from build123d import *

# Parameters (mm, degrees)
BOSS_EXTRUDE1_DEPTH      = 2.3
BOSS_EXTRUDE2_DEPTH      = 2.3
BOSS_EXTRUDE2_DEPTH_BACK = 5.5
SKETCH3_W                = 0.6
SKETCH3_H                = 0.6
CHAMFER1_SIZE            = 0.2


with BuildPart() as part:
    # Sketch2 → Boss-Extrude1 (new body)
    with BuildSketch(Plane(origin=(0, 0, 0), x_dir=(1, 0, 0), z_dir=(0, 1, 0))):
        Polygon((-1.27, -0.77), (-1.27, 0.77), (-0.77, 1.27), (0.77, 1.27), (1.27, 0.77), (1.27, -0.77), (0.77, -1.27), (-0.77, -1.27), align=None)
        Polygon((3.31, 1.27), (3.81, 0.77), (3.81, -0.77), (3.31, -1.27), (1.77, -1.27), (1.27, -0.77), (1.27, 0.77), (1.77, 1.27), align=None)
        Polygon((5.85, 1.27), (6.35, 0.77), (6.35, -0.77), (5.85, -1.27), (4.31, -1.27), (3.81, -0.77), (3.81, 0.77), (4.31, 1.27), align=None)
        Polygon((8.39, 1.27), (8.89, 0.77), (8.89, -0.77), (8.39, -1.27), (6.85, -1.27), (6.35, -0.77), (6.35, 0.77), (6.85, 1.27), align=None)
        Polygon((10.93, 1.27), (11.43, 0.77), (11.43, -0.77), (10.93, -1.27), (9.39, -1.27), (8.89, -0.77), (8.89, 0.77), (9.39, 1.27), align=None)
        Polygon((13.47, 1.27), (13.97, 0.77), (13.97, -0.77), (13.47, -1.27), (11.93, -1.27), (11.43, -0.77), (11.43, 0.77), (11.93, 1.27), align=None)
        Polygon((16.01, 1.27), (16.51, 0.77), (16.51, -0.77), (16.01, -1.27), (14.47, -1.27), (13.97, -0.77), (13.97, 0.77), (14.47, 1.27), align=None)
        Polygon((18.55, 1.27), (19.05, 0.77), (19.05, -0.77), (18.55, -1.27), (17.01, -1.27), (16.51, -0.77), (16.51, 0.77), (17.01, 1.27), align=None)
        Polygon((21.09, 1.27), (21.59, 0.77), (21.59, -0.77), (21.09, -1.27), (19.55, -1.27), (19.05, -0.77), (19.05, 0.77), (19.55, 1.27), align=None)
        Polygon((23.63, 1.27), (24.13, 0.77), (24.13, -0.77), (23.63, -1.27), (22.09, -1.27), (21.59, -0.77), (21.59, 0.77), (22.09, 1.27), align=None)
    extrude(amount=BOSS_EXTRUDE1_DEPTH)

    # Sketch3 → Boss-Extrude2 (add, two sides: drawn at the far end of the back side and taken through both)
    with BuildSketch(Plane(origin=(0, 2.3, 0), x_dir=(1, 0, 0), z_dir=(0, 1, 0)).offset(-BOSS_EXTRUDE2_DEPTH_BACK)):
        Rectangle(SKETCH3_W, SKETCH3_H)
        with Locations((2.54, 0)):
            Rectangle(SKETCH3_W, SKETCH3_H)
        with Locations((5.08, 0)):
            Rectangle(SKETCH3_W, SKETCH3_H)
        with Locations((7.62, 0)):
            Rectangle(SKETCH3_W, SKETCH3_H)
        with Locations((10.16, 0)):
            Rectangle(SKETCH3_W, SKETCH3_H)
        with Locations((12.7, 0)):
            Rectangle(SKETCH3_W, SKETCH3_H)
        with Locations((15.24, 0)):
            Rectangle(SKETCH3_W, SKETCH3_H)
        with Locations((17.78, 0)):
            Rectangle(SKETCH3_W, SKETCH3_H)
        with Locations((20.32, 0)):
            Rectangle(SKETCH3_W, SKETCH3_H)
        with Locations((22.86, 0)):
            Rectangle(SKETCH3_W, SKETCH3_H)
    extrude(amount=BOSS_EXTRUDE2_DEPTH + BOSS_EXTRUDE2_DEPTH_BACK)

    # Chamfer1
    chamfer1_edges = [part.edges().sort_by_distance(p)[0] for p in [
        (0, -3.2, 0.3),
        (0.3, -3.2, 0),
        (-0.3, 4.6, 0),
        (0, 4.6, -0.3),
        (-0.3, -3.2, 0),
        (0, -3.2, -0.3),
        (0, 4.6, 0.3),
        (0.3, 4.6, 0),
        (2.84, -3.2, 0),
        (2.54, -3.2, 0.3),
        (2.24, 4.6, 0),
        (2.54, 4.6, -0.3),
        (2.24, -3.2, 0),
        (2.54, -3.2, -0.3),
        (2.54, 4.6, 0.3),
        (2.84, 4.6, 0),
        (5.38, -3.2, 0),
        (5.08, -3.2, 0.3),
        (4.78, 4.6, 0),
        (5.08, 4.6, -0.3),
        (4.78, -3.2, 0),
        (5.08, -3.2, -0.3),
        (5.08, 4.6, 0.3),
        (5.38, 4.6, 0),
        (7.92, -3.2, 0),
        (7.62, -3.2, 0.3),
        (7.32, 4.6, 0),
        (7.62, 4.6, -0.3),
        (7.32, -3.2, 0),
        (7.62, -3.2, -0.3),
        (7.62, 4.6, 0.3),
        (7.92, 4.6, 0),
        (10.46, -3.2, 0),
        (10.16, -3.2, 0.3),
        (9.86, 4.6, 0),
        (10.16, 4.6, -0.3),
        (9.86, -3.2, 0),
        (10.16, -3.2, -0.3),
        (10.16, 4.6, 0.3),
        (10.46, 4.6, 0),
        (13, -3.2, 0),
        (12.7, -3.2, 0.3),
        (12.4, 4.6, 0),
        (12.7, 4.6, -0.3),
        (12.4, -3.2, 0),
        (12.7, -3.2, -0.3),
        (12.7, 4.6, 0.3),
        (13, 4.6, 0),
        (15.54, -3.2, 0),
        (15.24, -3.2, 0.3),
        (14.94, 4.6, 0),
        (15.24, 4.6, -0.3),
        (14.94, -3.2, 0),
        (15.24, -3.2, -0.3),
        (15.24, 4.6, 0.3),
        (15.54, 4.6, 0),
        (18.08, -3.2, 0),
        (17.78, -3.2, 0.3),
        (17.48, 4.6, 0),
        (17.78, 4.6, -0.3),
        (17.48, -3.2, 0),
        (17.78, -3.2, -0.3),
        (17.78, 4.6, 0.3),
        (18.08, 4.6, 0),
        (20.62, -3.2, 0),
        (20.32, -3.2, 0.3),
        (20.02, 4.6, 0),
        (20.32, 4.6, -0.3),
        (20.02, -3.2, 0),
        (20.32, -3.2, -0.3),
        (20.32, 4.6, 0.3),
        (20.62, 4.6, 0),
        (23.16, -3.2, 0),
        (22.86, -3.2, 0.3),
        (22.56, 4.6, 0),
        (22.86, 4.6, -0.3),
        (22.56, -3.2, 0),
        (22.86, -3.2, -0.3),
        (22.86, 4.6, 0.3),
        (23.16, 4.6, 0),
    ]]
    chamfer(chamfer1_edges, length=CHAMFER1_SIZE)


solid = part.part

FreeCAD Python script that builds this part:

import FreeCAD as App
import Part
import Sketcher
Q = App.Units.Quantity


def edges_at(feature, points):
    """Names of the edges that pass closest to the given points."""
    edges = feature.Shape.Edges
    near = lambda p: min(range(len(edges)), key=lambda i: edges[i].distToShape(Part.Vertex(*p))[0])
    return sorted({f"Edge{near(p) + 1}" for p in points})


def add_polygon(sketch, points):
    """Adds a closed chain of lines whose ends are joined by coincident constraints."""
    first, n = sketch.GeometryCount, len(points)
    for a, b in zip(points, points[1:] + points[:1]):
        sketch.addGeometry(Part.LineSegment(App.Vector(*a, 0), App.Vector(*b, 0)), False)
    for i in range(n):
        sketch.addConstraint(Sketcher.Constraint("Coincident", first + i, 2, first + (i + 1) % n, 1))

doc = App.newDocument("Part")
params = doc.addObject("Spreadsheet::Sheet", "Params")
for row, (alias, value) in enumerate([
    ("sketch1_width", "1.54 mm"),
    ("pad1_length", "2.3 mm"),
    ("sketch2_width", "0.6 mm"),
    ("pad2_length", "2.3 mm"),
    ("pad2_length2", "5.5 mm"),
    ("chamfer_size", "0.2 mm"),
], start=1):
    params.set(f"A{row}", alias)
    params.set(f"B{row}", "=" + value)
    params.setAlias(f"B{row}", alias)

body = doc.addObject("PartDesign::Body", "Body")

# Sketch on XZ plane
sketch1 = body.newObject("Sketcher::SketchObject", "Sketch")
sketch1.AttachmentSupport = (doc.getObject("XZ_Plane"), [""])
sketch1.MapMode = "FlatFace"
add_polygon(sketch1, [(-1.3, -0.8), (-1.3, 0.8), (-0.8, 1.3), (0.8, 1.3), (1.3, 0.8), (1.8, 1.3), (3.3, 1.3), (3.8, 0.8), (4.3, 1.3), (5.8, 1.3), (6.3, 0.8), (6.8, 1.3), (8.4, 1.3), (8.9, 0.8), (9.4, 1.3), (10.9, 1.3), (11.4, 0.8), (11.9, 1.3), (13.5, 1.3), (14, 0.8), (14.5, 1.3), (16, 1.3), (16.5, 0.8), (17, 1.3), (18.6, 1.3), (19.1, 0.8), (19.6, 1.3), (21.1, 1.3), (21.6, 0.8), (22.1, 1.3), (23.6, 1.3), (24.1, 0.8), (24.1, -0.8), (23.6, -1.3), (22.1, -1.3), (21.6, -0.8), (21.1, -1.3), (19.6, -1.3), (19.1, -0.8), (18.6, -1.3), (17, -1.3), (16.5, -0.8), (16, -1.3), (14.5, -1.3), (14, -0.8), (13.5, -1.3), (11.9, -1.3), (11.4, -0.8), (10.9, -1.3), (9.4, -1.3), (8.9, -0.8), (8.4, -1.3), (6.8, -1.3), (6.3, -0.8), (5.8, -1.3), (4.3, -1.3), (3.8, -0.8), (3.3, -1.3), (1.8, -1.3), (1.3, -0.8), (0.8, -1.3), (-0.8, -1.3)])  # lines 0-61
sketch1.addConstraint([
    Sketcher.Constraint("Vertical", 0),
    Sketcher.Constraint("Horizontal", 2),
    Sketcher.Constraint("Horizontal", 5),
    Sketcher.Constraint("Horizontal", 8),
    Sketcher.Constraint("Horizontal", 11),
    Sketcher.Constraint("Horizontal", 14),
    Sketcher.Constraint("Horizontal", 17),
    Sketcher.Constraint("Horizontal", 20),
    Sketcher.Constraint("Horizontal", 23),
    Sketcher.Constraint("Horizontal", 26),
    Sketcher.Constraint("Horizontal", 29),
    Sketcher.Constraint("Vertical", 31),
    Sketcher.Constraint("Horizontal", 33),
    Sketcher.Constraint("Horizontal", 36),
    Sketcher.Constraint("Horizontal", 39),
    Sketcher.Constraint("Horizontal", 42),
    Sketcher.Constraint("Horizontal", 45),
    Sketcher.Constraint("Horizontal", 48),
    Sketcher.Constraint("Horizontal", 51),
    Sketcher.Constraint("Horizontal", 54),
    Sketcher.Constraint("Horizontal", 57),
    Sketcher.Constraint("Horizontal", 60),
    Sketcher.Constraint("Symmetric", 0, 2, 58, 2, -1, 1),
    Sketcher.Constraint("Symmetric", 1, 2, 59, 2, -1, 1),
    Sketcher.Constraint("Symmetric", 3, 2, 61, 2, -1, 1),
    Sketcher.Constraint("Symmetric", 29, 2, 32, 2, -1),
    Sketcher.Constraint("Symmetric", 27, 2, 34, 2, -1),
    Sketcher.Constraint("Symmetric", 26, 2, 35, 2, -1),
    Sketcher.Constraint("Symmetric", 24, 2, 37, 2, -1),
    Sketcher.Constraint("Symmetric", 23, 2, 38, 2, -1),
    Sketcher.Constraint("Symmetric", 21, 2, 40, 2, -1),
    Sketcher.Constraint("Symmetric", 20, 2, 41, 2, -1),
    Sketcher.Constraint("Symmetric", 18, 2, 43, 2, -1),
    Sketcher.Constraint("Symmetric", 17, 2, 44, 2, -1),
    Sketcher.Constraint("Symmetric", 15, 2, 46, 2, -1),
    Sketcher.Constraint("Symmetric", 14, 2, 47, 2, -1),
    Sketcher.Constraint("Symmetric", 12, 2, 49, 2, -1),
    Sketcher.Constraint("Symmetric", 11, 2, 50, 2, -1),
    Sketcher.Constraint("Symmetric", 9, 2, 52, 2, -1),
    Sketcher.Constraint("Symmetric", 8, 2, 53, 2, -1),
    Sketcher.Constraint("Symmetric", 6, 2, 55, 2, -1),
    Sketcher.Constraint("Symmetric", 5, 2, 56, 2, -1),
    Sketcher.Constraint("Perpendicular", 1, 3),
    Sketcher.Constraint("Perpendicular", 3, 4),
    Sketcher.Constraint("Perpendicular", 4, 6),
    Sketcher.Constraint("Perpendicular", 6, 7),
    Sketcher.Constraint("Perpendicular", 7, 9),
    Sketcher.Constraint("Perpendicular", 9, 10),
    Sketcher.Constraint("Perpendicular", 10, 12),
    Sketcher.Constraint("Perpendicular", 12, 13),
    Sketcher.Constraint("Perpendicular", 13, 15),
    Sketcher.Constraint("Perpendicular", 15, 16),
    Sketcher.Constraint("Perpendicular", 16, 18),
    Sketcher.Constraint("Perpendicular", 18, 19),
    Sketcher.Constraint("Perpendicular", 19, 21),
    Sketcher.Constraint("Perpendicular", 21, 22),
    Sketcher.Constraint("Perpendicular", 22, 24),
    Sketcher.Constraint("Perpendicular", 24, 25),
    Sketcher.Constraint("Perpendicular", 25, 27),
    Sketcher.Constraint("Perpendicular", 27, 28),
    Sketcher.Constraint("Perpendicular", 28, 30),
    Sketcher.Constraint("Perpendicular", 30, 32),
    Sketcher.Constraint("Perpendicular", 32, 34),
    Sketcher.Constraint("Perpendicular", 34, 35),
    Sketcher.Constraint("Perpendicular", 35, 37),
    Sketcher.Constraint("Perpendicular", 38, 40),
    Sketcher.Constraint("Perpendicular", 41, 43),
    Sketcher.Constraint("Perpendicular", 44, 46),
    Sketcher.Constraint("Perpendicular", 47, 49),
    Sketcher.Constraint("Perpendicular", 50, 52),
    Sketcher.Constraint("Perpendicular", 53, 55),
    Sketcher.Constraint("Perpendicular", 56, 58),
    Sketcher.Constraint("Perpendicular", 59, 61),
    Sketcher.Constraint("Horizontal", 0, 2, 3, 2),
    Sketcher.Constraint("Horizontal", 2, 2, 4, 2),
    Sketcher.Constraint("Horizontal", 3, 2, 6, 2),
    Sketcher.Constraint("Horizontal", 5, 2, 7, 2),
    Sketcher.Constraint("Horizontal", 6, 2, 9, 2),
    Sketcher.Constraint("Horizontal", 8, 2, 10, 2),
    Sketcher.Constraint("Horizontal", 9, 2, 12, 2),
    Sketcher.Constraint("Horizontal", 11, 2, 13, 2),
    Sketcher.Constraint("Horizontal", 12, 2, 15, 2),
    Sketcher.Constraint("Horizontal", 14, 2, 16, 2),
    Sketcher.Constraint("Horizontal", 15, 2, 18, 2),
    Sketcher.Constraint("Horizontal", 17, 2, 19, 2),
    Sketcher.Constraint("Horizontal", 18, 2, 21, 2),
    Sketcher.Constraint("Horizontal", 20, 2, 22, 2),
    Sketcher.Constraint("Horizontal", 21, 2, 24, 2),
    Sketcher.Constraint("Horizontal", 23, 2, 25, 2),
    Sketcher.Constraint("Horizontal", 24, 2, 27, 2),
    Sketcher.Constraint("Horizontal", 26, 2, 28, 2),
    Sketcher.Constraint("Horizontal", 27, 2, 30, 2),
    Sketcher.Constraint("Equal", 2, 5),
    Sketcher.Constraint("Equal", 5, 8),
    Sketcher.Constraint("Equal", 8, 11),
    Sketcher.Constraint("Equal", 11, 14),
    Sketcher.Constraint("Equal", 14, 17),
    Sketcher.Constraint("Equal", 17, 20),
    Sketcher.Constraint("Equal", 20, 23),
    Sketcher.Constraint("Equal", 23, 26),
    Sketcher.Constraint("Equal", 26, 29),
    Sketcher.Constraint("Equal", 60, 0),
    Sketcher.Constraint("DistanceX", 2, 1, 2, 2, Q("1.54 mm")),
    Sketcher.Constraint("DistanceX", 0, 2, -1, 1, Q("1.27 mm")),
])
sketch1.setExpression("Constraints[164]", "Params.sketch1_width")
pad1 = body.newObject("PartDesign::Pad", "Pad")
pad1.Profile = sketch1
pad1.setExpression("Length", "Params.pad1_length")
pad1.Reversed = True

# Sketch on XZ plane
sketch2 = body.newObject("Sketcher::SketchObject", "Sketch001")
sketch2.AttachmentSupport = (doc.getObject("XZ_Plane"), [""])
sketch2.MapMode = "FlatFace"
sketch2.AttachmentOffset = App.Placement(App.Vector(0, 0, -2.3), App.Rotation())
add_polygon(sketch2, [(-0.3, -0.3), (-0.3, 0.3), (0.3, 0.3), (0.3, -0.3)])  # lines 0-3
add_polygon(sketch2, [(2.2, -0.3), (2.2, 0.3), (2.8, 0.3), (2.8, -0.3)])  # lines 4-7
add_polygon(sketch2, [(4.8, -0.3), (4.8, 0.3), (5.4, 0.3), (5.4, -0.3)])  # lines 8-11
add_polygon(sketch2, [(7.3, -0.3), (7.3, 0.3), (7.9, 0.3), (7.9, -0.3)])  # lines 12-15
add_polygon(sketch2, [(9.9, -0.3), (9.9, 0.3), (10.5, 0.3), (10.5, -0.3)])  # lines 16-19
add_polygon(sketch2, [(12.4, -0.3), (12.4, 0.3), (13, 0.3), (13, -0.3)])  # lines 20-23
add_polygon(sketch2, [(14.9, -0.3), (14.9, 0.3), (15.5, 0.3), (15.5, -0.3)])  # lines 24-27
add_polygon(sketch2, [(17.5, -0.3), (17.5, 0.3), (18.1, 0.3), (18.1, -0.3)])  # lines 28-31
add_polygon(sketch2, [(20, -0.3), (20, 0.3), (20.6, 0.3), (20.6, -0.3)])  # lines 32-35
add_polygon(sketch2, [(22.6, -0.3), (22.6, 0.3), (23.2, 0.3), (23.2, -0.3)])  # lines 36-39
sketch2.addConstraint([
    Sketcher.Constraint("Vertical", 0),
    Sketcher.Constraint("Horizontal", 1),
    Sketcher.Constraint("Vertical", 2),
    Sketcher.Constraint("Horizontal", 3),
    Sketcher.Constraint("Vertical", 4),
    Sketcher.Constraint("Horizontal", 5),
    Sketcher.Constraint("Vertical", 6),
    Sketcher.Constraint("Horizontal", 7),
    Sketcher.Constraint("Vertical", 8),
    Sketcher.Constraint("Horizontal", 9),
    Sketcher.Constraint("Vertical", 10),
    Sketcher.Constraint("Horizontal", 11),
    Sketcher.Constraint("Vertical", 12),
    Sketcher.Constraint("Horizontal", 13),
    Sketcher.Constraint("Vertical", 14),
    Sketcher.Constraint("Horizontal", 15),
    Sketcher.Constraint("Vertical", 16),
    Sketcher.Constraint("Horizontal", 17),
    Sketcher.Constraint("Vertical", 18),
    Sketcher.Constraint("Horizontal", 19),
    Sketcher.Constraint("Vertical", 20),
    Sketcher.Constraint("Horizontal", 21),
    Sketcher.Constraint("Vertical", 22),
    Sketcher.Constraint("Horizontal", 23),
    Sketcher.Constraint("Vertical", 24),
    Sketcher.Constraint("Horizontal", 25),
    Sketcher.Constraint("Vertical", 26),
    Sketcher.Constraint("Horizontal", 27),
    Sketcher.Constraint("Vertical", 28),
    Sketcher.Constraint("Horizontal", 29),
    Sketcher.Constraint("Vertical", 30),
    Sketcher.Constraint("Horizontal", 31),
    Sketcher.Constraint("Vertical", 32),
    Sketcher.Constraint("Horizontal", 33),
    Sketcher.Constraint("Vertical", 34),
    Sketcher.Constraint("Horizontal", 35),
    Sketcher.Constraint("Vertical", 36),
    Sketcher.Constraint("Horizontal", 37),
    Sketcher.Constraint("Vertical", 38),
    Sketcher.Constraint("Horizontal", 39),
    Sketcher.Constraint("Symmetric", 0, 2, 2, 2, -1, 1),
    Sketcher.Constraint("Horizontal", 1, 2, 4, 2),
    Sketcher.Constraint("Horizontal", 3, 2, 6, 2),
    Sketcher.Constraint("Horizontal", 5, 2, 8, 2),
    Sketcher.Constraint("Horizontal", 7, 2, 10, 2),
    Sketcher.Constraint("Horizontal", 9, 2, 12, 2),
    Sketcher.Constraint("Horizontal", 11, 2, 14, 2),
    Sketcher.Constraint("Horizontal", 13, 2, 16, 2),
    Sketcher.Constraint("Horizontal", 15, 2, 18, 2),
    Sketcher.Constraint("Horizontal", 17, 2, 20, 2),
    Sketcher.Constraint("Horizontal", 19, 2, 22, 2),
    Sketcher.Constraint("Horizontal", 21, 2, 24, 2),
    Sketcher.Constraint("Horizontal", 23, 2, 26, 2),
    Sketcher.Constraint("Horizontal", 25, 2, 28, 2),
    Sketcher.Constraint("Horizontal", 27, 2, 30, 2),
    Sketcher.Constraint("Horizontal", 29, 2, 32, 2),
    Sketcher.Constraint("Horizontal", 31, 2, 34, 2),
    Sketcher.Constraint("Horizontal", 33, 2, 36, 2),
    Sketcher.Constraint("Horizontal", 35, 2, 38, 2),
    Sketcher.Constraint("Equal", 3, 5),
    Sketcher.Constraint("Equal", 7, 9),
    Sketcher.Constraint("Equal", 11, 13),
    Sketcher.Constraint("Equal", 15, 17),
    Sketcher.Constraint("Equal", 19, 21),
    Sketcher.Constraint("Equal", 23, 25),
    Sketcher.Constraint("Equal", 27, 29),
    Sketcher.Constraint("Equal", 31, 33),
    Sketcher.Constraint("Equal", 35, 37),
    Sketcher.Constraint("Equal", 39, 0),
    Sketcher.Constraint("DistanceX", 1, 1, 1, 2, Q("0.6 mm")),
    Sketcher.Constraint("DistanceX", -1, 1, 21, 2, Q("13 mm")),
    Sketcher.Constraint("DistanceX", -1, 1, 4, 2, Q("2.24 mm")),
    Sketcher.Constraint("DistanceX", -1, 1, 8, 2, Q("4.78 mm")),
    Sketcher.Constraint("DistanceX", -1, 1, 12, 2, Q("7.32 mm")),
    Sketcher.Constraint("DistanceX", -1, 1, 16, 2, Q("9.86 mm")),
    Sketcher.Constraint("DistanceX", -1, 1, 24, 2, Q("14.94 mm")),
    Sketcher.Constraint("DistanceX", -1, 1, 28, 2, Q("17.48 mm")),
    Sketcher.Constraint("DistanceX", -1, 1, 32, 2, Q("20.02 mm")),
    Sketcher.Constraint("DistanceX", -1, 1, 36, 2, Q("22.56 mm")),
])
sketch2.setExpression("Constraints[109]", "Params.sketch2_width")
pad2 = body.newObject("PartDesign::Pad", "Pad001")
pad2.Profile = sketch2
pad2.Type = "TwoLengths"
pad2.setExpression("Length", "Params.pad2_length")
pad2.setExpression("Length2", "Params.pad2_length2")
pad2.Reversed = True
doc.recompute()

chamfer = body.newObject("PartDesign::Chamfer", "Chamfer")
chamfer.Base = (pad2, edges_at(pad2, [
    (0, -3.2, 0.3),
    (0.3, -3.2, 0),
    (-0.3, 4.6, 0),
    (0, 4.6, -0.3),
    (-0.3, -3.2, 0),
    (0, -3.2, -0.3),
    (0, 4.6, 0.3),
    (0.3, 4.6, 0),
    (2.84, -3.2, 0),
    (2.54, -3.2, 0.3),
    (2.24, 4.6, 0),
    (2.54, 4.6, -0.3),
    (2.24, -3.2, 0),
    (2.54, -3.2, -0.3),
    (2.54, 4.6, 0.3),
    (2.84, 4.6, 0),
    (5.38, -3.2, 0),
    (5.08, -3.2, 0.3),
    (4.78, 4.6, 0),
    (5.08, 4.6, -0.3),
    (4.78, -3.2, 0),
    (5.08, -3.2, -0.3),
    (5.08, 4.6, 0.3),
    (5.38, 4.6, 0),
    (7.92, -3.2, 0),
    (7.62, -3.2, 0.3),
    (7.32, 4.6, 0),
    (7.62, 4.6, -0.3),
    (7.32, -3.2, 0),
    (7.62, -3.2, -0.3),
    (7.62, 4.6, 0.3),
    (7.92, 4.6, 0),
    (10.46, -3.2, 0),
    (10.16, -3.2, 0.3),
    (9.86, 4.6, 0),
    (10.16, 4.6, -0.3),
    (9.86, -3.2, 0),
    (10.16, -3.2, -0.3),
    (10.16, 4.6, 0.3),
    (10.46, 4.6, 0),
    (13, -3.2, 0),
    (12.7, -3.2, 0.3),
    (12.4, 4.6, 0),
    (12.7, 4.6, -0.3),
    (12.4, -3.2, 0),
    (12.7, -3.2, -0.3),
    (12.7, 4.6, 0.3),
    (13, 4.6, 0),
    (15.54, -3.2, 0),
    (15.24, -3.2, 0.3),
    (14.94, 4.6, 0),
    (15.24, 4.6, -0.3),
    (14.94, -3.2, 0),
    (15.24, -3.2, -0.3),
    (15.24, 4.6, 0.3),
    (15.54, 4.6, 0),
    (18.08, -3.2, 0),
    (17.78, -3.2, 0.3),
    (17.48, 4.6, 0),
    (17.78, 4.6, -0.3),
    (17.48, -3.2, 0),
    (17.78, -3.2, -0.3),
    (17.78, 4.6, 0.3),
    (18.08, 4.6, 0),
    (20.62, -3.2, 0),
    (20.32, -3.2, 0.3),
    (20.02, 4.6, 0),
    (20.32, 4.6, -0.3),
    (20.02, -3.2, 0),
    (20.32, -3.2, -0.3),
    (20.32, 4.6, 0.3),
    (20.62, 4.6, 0),
    (23.16, -3.2, 0),
    (22.86, -3.2, 0.3),
    (22.56, 4.6, 0),
    (22.86, 4.6, -0.3),
    (22.56, -3.2, 0),
    (22.86, -3.2, -0.3),
    (22.86, 4.6, 0.3),
    (23.16, 4.6, 0),
]))
chamfer.setExpression("Size", "Params.chamfer_size")

doc.recompute()
